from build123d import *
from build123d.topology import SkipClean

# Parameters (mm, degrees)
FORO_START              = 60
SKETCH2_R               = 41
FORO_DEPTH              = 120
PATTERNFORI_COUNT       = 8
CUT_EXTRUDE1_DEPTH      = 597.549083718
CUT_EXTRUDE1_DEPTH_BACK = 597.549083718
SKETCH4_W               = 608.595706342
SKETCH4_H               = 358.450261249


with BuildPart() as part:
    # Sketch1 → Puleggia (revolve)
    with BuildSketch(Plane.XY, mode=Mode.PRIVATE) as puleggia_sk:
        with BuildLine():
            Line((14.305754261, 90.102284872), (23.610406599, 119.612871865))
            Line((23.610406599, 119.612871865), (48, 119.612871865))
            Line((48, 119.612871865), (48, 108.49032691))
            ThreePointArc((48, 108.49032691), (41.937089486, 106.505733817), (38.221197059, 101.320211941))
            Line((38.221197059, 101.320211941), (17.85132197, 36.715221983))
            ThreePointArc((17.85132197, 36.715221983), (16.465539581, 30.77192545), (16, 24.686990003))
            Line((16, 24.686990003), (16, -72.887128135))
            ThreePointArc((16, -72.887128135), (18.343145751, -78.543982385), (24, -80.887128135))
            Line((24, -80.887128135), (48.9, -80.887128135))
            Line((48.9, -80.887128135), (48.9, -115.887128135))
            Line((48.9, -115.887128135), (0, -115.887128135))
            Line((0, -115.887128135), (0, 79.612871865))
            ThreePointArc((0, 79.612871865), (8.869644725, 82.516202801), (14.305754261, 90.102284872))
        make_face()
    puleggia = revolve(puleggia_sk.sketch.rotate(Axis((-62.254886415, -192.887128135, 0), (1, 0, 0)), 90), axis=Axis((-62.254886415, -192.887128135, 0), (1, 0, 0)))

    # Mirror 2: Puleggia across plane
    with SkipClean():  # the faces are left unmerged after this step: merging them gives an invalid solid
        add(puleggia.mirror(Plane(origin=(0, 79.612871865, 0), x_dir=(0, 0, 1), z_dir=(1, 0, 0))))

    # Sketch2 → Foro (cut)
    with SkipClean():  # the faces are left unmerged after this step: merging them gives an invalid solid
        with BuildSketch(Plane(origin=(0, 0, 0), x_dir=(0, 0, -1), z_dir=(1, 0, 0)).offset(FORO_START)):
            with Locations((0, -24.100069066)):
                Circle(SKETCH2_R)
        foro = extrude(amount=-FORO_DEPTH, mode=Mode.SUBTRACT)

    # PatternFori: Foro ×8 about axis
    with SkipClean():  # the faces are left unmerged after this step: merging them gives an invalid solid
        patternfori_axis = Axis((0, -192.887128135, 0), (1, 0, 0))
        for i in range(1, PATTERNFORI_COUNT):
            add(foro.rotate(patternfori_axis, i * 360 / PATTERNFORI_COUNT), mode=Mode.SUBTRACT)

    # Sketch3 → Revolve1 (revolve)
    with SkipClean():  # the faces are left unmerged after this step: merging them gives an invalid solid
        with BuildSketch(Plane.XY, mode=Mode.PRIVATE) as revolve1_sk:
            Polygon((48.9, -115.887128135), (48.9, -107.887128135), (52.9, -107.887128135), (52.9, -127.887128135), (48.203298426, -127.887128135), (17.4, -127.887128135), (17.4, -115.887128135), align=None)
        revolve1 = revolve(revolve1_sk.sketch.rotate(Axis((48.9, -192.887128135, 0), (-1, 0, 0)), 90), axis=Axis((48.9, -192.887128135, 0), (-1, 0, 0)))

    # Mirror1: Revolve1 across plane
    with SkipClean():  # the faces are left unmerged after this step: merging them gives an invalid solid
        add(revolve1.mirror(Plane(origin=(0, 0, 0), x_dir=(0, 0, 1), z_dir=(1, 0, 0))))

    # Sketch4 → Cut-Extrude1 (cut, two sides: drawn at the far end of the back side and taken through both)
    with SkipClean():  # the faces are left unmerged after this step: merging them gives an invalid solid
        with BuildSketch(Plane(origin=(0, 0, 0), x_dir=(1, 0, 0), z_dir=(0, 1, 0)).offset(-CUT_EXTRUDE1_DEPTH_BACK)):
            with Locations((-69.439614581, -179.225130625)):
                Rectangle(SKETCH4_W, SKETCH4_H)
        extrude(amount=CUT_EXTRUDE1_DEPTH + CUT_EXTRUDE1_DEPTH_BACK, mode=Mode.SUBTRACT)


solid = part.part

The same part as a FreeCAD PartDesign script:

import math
import FreeCAD as App
import Part
import Sketcher
from FreeCAD import Vector
Q = App.Units.Quantity

doc = App.newDocument("Part")
body = doc.addObject("PartDesign::Body", "Body")

sketch1 = body.newObject("Sketcher::SketchObject", "Sketch")
sketch1.AttachmentSupport = (doc.getObject("XY_Plane"), [""])
sketch1.MapMode = "FlatFace"
sketch1.addGeometry(Part.LineSegment(Vector(24, 120, 0), Vector(14, 90, 0)), False)
sketch1.addGeometry(Part.ArcOfCircle(Part.Circle(Vector(0, 95, 0), Vector(0, 0, 1), 15), math.radians(-90), math.radians(-18)), False)
sketch1.addGeometry(Part.LineSegment(Vector(0, 80, 0), Vector(0, -116, 0)), False)
sketch1.addGeometry(Part.LineSegment(Vector(0, -116, 0), Vector(49, -116, 0)), False)
sketch1.addGeometry(Part.LineSegment(Vector(49, -116, 0), Vector(49, -81, 0)), False)
sketch1.addGeometry(Part.LineSegment(Vector(49, -81, 0), Vector(24, -81, 0)), False)
sketch1.addGeometry(Part.ArcOfCircle(Part.Circle(Vector(24, -73, 0), Vector(0, 0, 1), 8), math.radians(180), math.radians(270)), False)
sketch1.addGeometry(Part.LineSegment(Vector(16, -73, 0), Vector(16, 25, 0)), False)
sketch1.addGeometry(Part.ArcOfCircle(Part.Circle(Vector(56, 25, 0), Vector(0, 0, 1), 40), math.radians(162.5), math.radians(180)), False)
sketch1.addGeometry(Part.LineSegment(Vector(18, 37, 0), Vector(38, 101, 0)), False)
sketch1.addGeometry(Part.ArcOfCircle(Part.Circle(Vector(48, 98, 0), Vector(0, 0, 1), 10), math.radians(90), math.radians(162)), False)
sketch1.addGeometry(Part.LineSegment(Vector(48, 108, 0), Vector(48, 120, 0)), False)
sketch1.addGeometry(Part.LineSegment(Vector(48, 120, 0), Vector(24, 120, 0)), False)
sketch1.addGeometry(Part.LineSegment(Vector(0, -193, 0), Vector(56, -193, 0)), True)
sketch1.addConstraint(Sketcher.Constraint("Tangent", 0, 2, 1, 2))
sketch1.addConstraint(Sketcher.Constraint("Coincident", 1, 1, 2, 1))
sketch1.addConstraint(Sketcher.Constraint("Coincident", 2, 2, 3, 1))
sketch1.addConstraint(Sketcher.Constraint("Coincident", 3, 2, 4, 1))
sketch1.addConstraint(Sketcher.Constraint("Coincident", 4, 2, 5, 1))
sketch1.addConstraint(Sketcher.Constraint("Tangent", 5, 2, 6, 2))
sketch1.addConstraint(Sketcher.Constraint("Tangent", 6, 1, 7, 1))
sketch1.addConstraint(Sketcher.Constraint("Tangent", 7, 2, 8, 2))
sketch1.addConstraint(Sketcher.Constraint("Tangent", 8, 1, 9, 1))
sketch1.addConstraint(Sketcher.Constraint("Tangent", 9, 2, 10, 2))
sketch1.addConstraint(Sketcher.Constraint("Coincident", 10, 1, 11, 1))
sketch1.addConstraint(Sketcher.Constraint("Coincident", 11, 2, 12, 1))
sketch1.addConstraint(Sketcher.Constraint("Coincident", 12, 2, 0, 1))
sketch1.addConstraint(Sketcher.Constraint("Vertical", 2))
sketch1.addConstraint(Sketcher.Constraint("Horizontal", 3))
sketch1.addConstraint(Sketcher.Constraint("Vertical", 4))
sketch1.addConstraint(Sketcher.Constraint("Horizontal", 5))
sketch1.addConstraint(Sketcher.Constraint("Vertical", 7))
sketch1.addConstraint(Sketcher.Constraint("Vertical", 11))
sketch1.addConstraint(Sketcher.Constraint("Horizontal", 12))
sketch1.addConstraint(Sketcher.Constraint("Horizontal", 13))
sketch1.addConstraint(Sketcher.Constraint("PointOnObject", 1, 3, -2))
sketch1.addConstraint(Sketcher.Constraint("PointOnObject", 1, 1, -2))
sketch1.addConstraint(Sketcher.Constraint("PointOnObject", 13, 1, -2))
sketch1.addConstraint(Sketcher.Constraint("Parallel", 0, 9))
sketch1.addConstraint(Sketcher.Constraint("Vertical", 8, 3, 13, 2))
sketch1.addConstraint(Sketcher.Constraint("Radius", 1, 15.0))
sketch1.addConstraint(Sketcher.Constraint("Radius", 6, 8.0))
sketch1.addConstraint(Sketcher.Constraint("Radius", 8, 40.0))
sketch1.addConstraint(Sketcher.Constraint("DistanceX", 13, 1, 13, 2, 56.0))
sketch1.addConstraint(Sketcher.Constraint("DistanceY", 4, 1, 4, 2, 35.0))
sketch1.addConstraint(Sketcher.Constraint("DistanceX", 3, 1, 3, 2, 48.9))
sketch1.addConstraint(Sketcher.Constraint("DistanceY", 2, 2, 2, 1, 195.5))
sketch1.addConstraint(Sketcher.Constraint("DistanceX", -1, 1, 10, 3, 48.0))
sketch1.addConstraint(Sketcher.Constraint("DistanceX", -1, 1, 10, 1, 48.0))
sketch1.addConstraint(Sketcher.Constraint("Angle", 0, Q("-107.5 deg")))
sketch1.addConstraint(Sketcher.Constraint("DistanceY", 1, 3, 11, 2, 25.0))
sketch1.addConstraint(Sketcher.Constraint("DistanceY", 13, 1, 2, 2, 77.0))
sketch1.addConstraint(Sketcher.Constraint("Radius", 10, 10.25336))
sketch1.addConstraint(Sketcher.Constraint("DistanceY", 7, 1, 7, 2, 97.574118))
sketch1.addConstraint(Sketcher.Constraint("DistanceY", -1, 1, 1, 3, 94.612872))
revolution = body.newObject("PartDesign::Revolution", "Revolution")
revolution.Profile = sketch1
revolution.ReferenceAxis = (sketch1, ["Axis0"])
revolution.Angle = 360
doc.recompute()

mirrored = body.newObject("PartDesign::Mirrored", "Mirrored")
mirrored.Originals = [revolution]
mirrored.MirrorPlane = (doc.getObject("YZ_Plane"), [""])
body.Tip = mirrored

sketch2 = body.newObject("Sketcher::SketchObject", "Sketch001")
sketch2.AttachmentSupport = (doc.getObject("YZ_Plane"), [""])
sketch2.MapMode = "FlatFace"
sketch2.AttachmentOffset = App.Placement(Vector(0, 0, 60), App.Rotation())
sketch2.addGeometry(Part.Circle(Vector(-24, 0, 0), Vector(0, 0, 1), 41), False)
sketch2.addConstraint(Sketcher.Constraint("PointOnObject", 0, 3, -1))
sketch2.addConstraint(Sketcher.Constraint("Diameter", 0, 82.0))
sketch2.addConstraint(Sketcher.Constraint("DistanceX", 0, 3, -1, 1, 24.100069))
pocket1 = body.newObject("PartDesign::Pocket", "Pocket")
pocket1.Profile = sketch2
pocket1.Length = 120
doc.recompute()

datumline = body.newObject("PartDesign::Line", "DatumLine")
datumline.Placement = App.Placement(Vector(0, -192.887128, 0), App.Rotation(Vector(0, 0, 1), Vector(1, 0, 0)))
polarpattern = body.newObject("PartDesign::PolarPattern", "PolarPattern")
polarpattern.Originals = [pocket1]
polarpattern.Axis = (datumline, [""])
polarpattern.Angle = 360
polarpattern.Occurrences = 8
body.Tip = polarpattern

sketch3 = body.newObject("Sketcher::SketchObject", "Sketch002")
sketch3.AttachmentSupport = (doc.getObject("XY_Plane"), [""])
sketch3.MapMode = "FlatFace"
sketch3.addGeometry(Part.LineSegment(Vector(48.9, -107.9, 0), Vector(48.9, -115.9, 0)), False)
sketch3.addGeometry(Part.LineSegment(Vector(48.9, -115.9, 0), Vector(17.4, -115.9, 0)), False)
sketch3.addGeometry(Part.LineSegment(Vector(17.4, -115.9, 0), Vector(17.4, -127.9, 0)), False)
sketch3.addGeometry(Part.LineSegment(Vector(17.4, -127.9, 0), Vector(52.9, -127.9, 0)), False)
sketch3.addGeometry(Part.LineSegment(Vector(52.9, -127.9, 0), Vector(52.9, -107.9, 0)), False)
sketch3.addGeometry(Part.LineSegment(Vector(52.9, -107.9, 0), Vector(48.9, -107.9, 0)), False)
sketch3.addGeometry(Part.LineSegment(Vector(52.9, -192.9, 0), Vector(17.4, -192.9, 0)), True)
sketch3.addConstraint(Sketcher.Constraint("Coincident", 0, 2, 1, 1))
sketch3.addConstraint(Sketcher.Constraint("Coincident", 1, 2, 2, 1))
sketch3.addConstraint(Sketcher.Constraint("Coincident", 2, 2, 3, 1))
sketch3.addConstraint(Sketcher.Constraint("Coincident", 3, 2, 4, 1))
sketch3.addConstraint(Sketcher.Constraint("Coincident", 4, 2, 5, 1))
sketch3.addConstraint(Sketcher.Constraint("Coincident", 5, 2, 0, 1))
sketch3.addConstraint(Sketcher.Constraint("Vertical", 0))
sketch3.addConstraint(Sketcher.Constraint("Horizontal", 1))
sketch3.addConstraint(Sketcher.Constraint("Vertical", 2))
sketch3.addConstraint(Sketcher.Constraint("Horizontal", 3))
sketch3.addConstraint(Sketcher.Constraint("Vertical", 4))
sketch3.addConstraint(Sketcher.Constraint("Horizontal", 5))
sketch3.addConstraint(Sketcher.Constraint("Horizontal", 6))
sketch3.addConstraint(Sketcher.Constraint("Vertical", 4, 2, 6, 1))
sketch3.addConstraint(Sketcher.Constraint("Vertical", 2, 2, 6, 2))
sketch3.addConstraint(Sketcher.Constraint("DistanceX", 5, 2, 5, 1, 4.0))
sketch3.addConstraint(Sketcher.Constraint("DistanceY", 0, 2, 0, 1, 8.0))
sketch3.addConstraint(Sketcher.Constraint("DistanceY", 2, 2, 2, 1, 12.0))
sketch3.addConstraint(Sketcher.Constraint("DistanceX", 1, 2, 1, 1, 31.5))
sketch3.addConstraint(Sketcher.Constraint("DistanceY", 6, 1, 3, 2, 65.0))
sketch3.addConstraint(Sketcher.Constraint("DistanceX", -1, 1, 0, 2, 48.9))
sketch3.addConstraint(Sketcher.Constraint("DistanceY", 0, 2, -1, 1, 115.887128))
revolution2 = body.newObject("PartDesign::Revolution", "Revolution001")
revolution2.Profile = sketch3
revolution2.ReferenceAxis = (sketch3, ["Axis0"])
revolution2.Angle = 360
doc.recompute()

mirrored2 = body.newObject("PartDesign::Mirrored", "Mirrored001")
mirrored2.Originals = [revolution2]
mirrored2.MirrorPlane = (doc.getObject("YZ_Plane"), [""])
body.Tip = mirrored2

sketch4 = body.newObject("Sketcher::SketchObject", "Sketch003")
sketch4.AttachmentSupport = (doc.getObject("XZ_Plane"), [""])
sketch4.MapMode = "FlatFace"
sketch4.addGeometry(Part.LineSegment(Vector(-374, 0, 0), Vector(-374, 358, 0)), False)
sketch4.addGeometry(Part.LineSegment(Vector(-374, 358, 0), Vector(235, 358, 0)), False)
sketch4.addGeometry(Part.LineSegment(Vector(235, 358, 0), Vector(235, 0, 0)), False)
sketch4.addGeometry(Part.LineSegment(Vector(235, 0, 0), Vector(-374, 0, 0)), False)
sketch4.addConstraint(Sketcher.Constraint("Coincident", 0, 2, 1, 1))
sketch4.addConstraint(Sketcher.Constraint("Coincident", 1, 2, 2, 1))
sketch4.addConstraint(Sketcher.Constraint("Coincident", 2, 2, 3, 1))
sketch4.addConstraint(Sketcher.Constraint("Coincident", 3, 2, 0, 1))
sketch4.addConstraint(Sketcher.Constraint("Vertical", 0))
sketch4.addConstraint(Sketcher.Constraint("Horizontal", 1))
sketch4.addConstraint(Sketcher.Constraint("Vertical", 2))
sketch4.addConstraint(Sketcher.Constraint("Horizontal", 3))
sketch4.addConstraint(Sketcher.Constraint("PointOnObject", 2, 2, -1))
sketch4.addConstraint(Sketcher.Constraint("DistanceY", 0, 1, 0, 2, 358.450261))
sketch4.addConstraint(Sketcher.Constraint("DistanceX", 1, 1, 1, 2, 608.595706))
sketch4.addConstraint(Sketcher.Constraint("DistanceX", -1, 1, 1, 2, 234.858239))
pocket2 = body.newObject("PartDesign::Pocket", "Pocket001")
pocket2.Profile = sketch4
pocket2.Type = "ThroughAll"
pocket2.Midplane = True

doc.recompute()
